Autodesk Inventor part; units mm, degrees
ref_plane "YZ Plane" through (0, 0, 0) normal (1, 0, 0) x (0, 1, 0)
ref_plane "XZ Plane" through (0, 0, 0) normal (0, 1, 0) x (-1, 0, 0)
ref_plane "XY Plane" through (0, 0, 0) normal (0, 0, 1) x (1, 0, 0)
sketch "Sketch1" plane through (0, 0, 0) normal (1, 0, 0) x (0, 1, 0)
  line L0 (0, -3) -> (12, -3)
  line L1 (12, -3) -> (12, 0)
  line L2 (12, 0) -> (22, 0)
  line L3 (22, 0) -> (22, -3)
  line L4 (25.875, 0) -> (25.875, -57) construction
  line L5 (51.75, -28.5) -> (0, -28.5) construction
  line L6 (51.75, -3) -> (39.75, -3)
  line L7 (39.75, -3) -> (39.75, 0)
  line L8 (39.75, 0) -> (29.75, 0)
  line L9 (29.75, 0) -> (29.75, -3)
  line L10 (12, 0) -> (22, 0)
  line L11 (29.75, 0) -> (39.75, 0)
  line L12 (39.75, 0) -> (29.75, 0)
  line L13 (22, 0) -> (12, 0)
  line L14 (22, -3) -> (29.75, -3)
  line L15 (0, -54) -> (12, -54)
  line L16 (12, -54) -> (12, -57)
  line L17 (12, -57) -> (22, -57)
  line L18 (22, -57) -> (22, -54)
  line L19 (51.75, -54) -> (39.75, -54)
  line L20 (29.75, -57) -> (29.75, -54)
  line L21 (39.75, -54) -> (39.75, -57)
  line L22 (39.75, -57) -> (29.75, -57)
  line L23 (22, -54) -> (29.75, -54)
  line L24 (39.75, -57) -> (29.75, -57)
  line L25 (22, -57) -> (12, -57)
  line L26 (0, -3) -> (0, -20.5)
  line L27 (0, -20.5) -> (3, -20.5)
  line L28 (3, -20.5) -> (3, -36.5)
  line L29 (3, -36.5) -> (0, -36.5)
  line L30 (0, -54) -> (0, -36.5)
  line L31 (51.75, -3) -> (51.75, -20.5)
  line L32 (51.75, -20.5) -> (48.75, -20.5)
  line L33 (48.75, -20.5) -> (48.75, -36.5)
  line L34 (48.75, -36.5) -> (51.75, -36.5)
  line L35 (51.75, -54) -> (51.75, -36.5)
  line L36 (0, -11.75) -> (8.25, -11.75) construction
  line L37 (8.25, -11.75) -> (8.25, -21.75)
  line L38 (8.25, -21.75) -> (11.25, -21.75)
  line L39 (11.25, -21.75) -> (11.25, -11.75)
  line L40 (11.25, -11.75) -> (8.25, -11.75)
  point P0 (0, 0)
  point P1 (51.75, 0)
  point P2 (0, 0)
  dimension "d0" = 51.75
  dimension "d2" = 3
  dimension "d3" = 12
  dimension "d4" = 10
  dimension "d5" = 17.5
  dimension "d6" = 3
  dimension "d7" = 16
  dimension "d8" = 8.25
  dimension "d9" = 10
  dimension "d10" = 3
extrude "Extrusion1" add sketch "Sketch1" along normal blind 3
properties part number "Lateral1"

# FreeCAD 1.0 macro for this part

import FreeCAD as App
import Part
import Sketcher

doc = App.newDocument("Part")
params = doc.addObject("Spreadsheet::Sheet", "Params")
for row, (alias, value) in enumerate([
    ("sketch1_width", "12 mm"),
    ("sketch1_width2", "3 mm"),
    ("sketch1_width3", "10 mm"),
    ("sketch1_height", "16 mm"),
    ("sketch1_height2", "17.5 mm"),
    ("pad1_length", "3 mm"),
], start=1):
    params.set(f"A{row}", alias)
    params.set(f"B{row}", "=" + value)
    params.setAlias(f"B{row}", alias)

body = doc.addObject("PartDesign::Body", "Body")

sketch1 = body.newObject("Sketcher::SketchObject", "Sketch")
sketch1.AttachmentSupport = (doc.getObject("YZ_Plane"), [""])
sketch1.MapMode = "FlatFace"
sketch1.addGeometry(Part.LineSegment(App.Vector(12, -3, 0), App.Vector(0, -3, 0)), False)
sketch1.addGeometry(Part.LineSegment(App.Vector(0, -3, 0), App.Vector(0, -20.5, 0)), False)
sketch1.addGeometry(Part.LineSegment(App.Vector(0, -20.5, 0), App.Vector(3, -20.5, 0)), False)
sketch1.addGeometry(Part.LineSegment(App.Vector(3, -20.5, 0), App.Vector(3, -36.5, 0)), False)
sketch1.addGeometry(Part.LineSegment(App.Vector(3, -36.5, 0), App.Vector(0, -36.5, 0)), False)
sketch1.addGeometry(Part.LineSegment(App.Vector(0, -36.5, 0), App.Vector(0, -54, 0)), False)
sketch1.addGeometry(Part.LineSegment(App.Vector(0, -54, 0), App.Vector(12, -54, 0)), False)
sketch1.addGeometry(Part.LineSegment(App.Vector(12, -54, 0), App.Vector(12, -57, 0)), False)
sketch1.addGeometry(Part.LineSegment(App.Vector(12, -57, 0), App.Vector(22, -57, 0)), False)
sketch1.addGeometry(Part.LineSegment(App.Vector(22, -57, 0), App.Vector(22, -54, 0)), False)
sketch1.addGeometry(Part.LineSegment(App.Vector(22, -54, 0), App.Vector(29.8, -54, 0)), False)
sketch1.addGeometry(Part.LineSegment(App.Vector(29.8, -54, 0), App.Vector(29.8, -57, 0)), False)
sketch1.addGeometry(Part.LineSegment(App.Vector(29.8, -57, 0), App.Vector(39.8, -57, 0)), False)
sketch1.addGeometry(Part.LineSegment(App.Vector(39.8, -57, 0), App.Vector(39.8, -54, 0)), False)
sketch1.addGeometry(Part.LineSegment(App.Vector(39.8, -54, 0), App.Vector(51.8, -54, 0)), False)
sketch1.addGeometry(Part.LineSegment(App.Vector(51.8, -54, 0), App.Vector(51.8, -36.5, 0)), False)
sketch1.addGeometry(Part.LineSegment(App.Vector(51.8, -36.5, 0), App.Vector(48.8, -36.5, 0)), False)
sketch1.addGeometry(Part.LineSegment(App.Vector(48.8, -36.5, 0), App.Vector(48.8, -20.5, 0)), False)
sketch1.addGeometry(Part.LineSegment(App.Vector(48.8, -20.5, 0), App.Vector(51.8, -20.5, 0)), False)
sketch1.addGeometry(Part.LineSegment(App.Vector(51.8, -20.5, 0), App.Vector(51.8, -3, 0)), False)
sketch1.addGeometry(Part.LineSegment(App.Vector(51.8, -3, 0), App.Vector(39.8, -3, 0)), False)
sketch1.addGeometry(Part.LineSegment(App.Vector(39.8, -3, 0), App.Vector(39.8, 0, 0)), False)
sketch1.addGeometry(Part.LineSegment(App.Vector(39.8, 0, 0), App.Vector(29.8, 0, 0)), False)
sketch1.addGeometry(Part.LineSegment(App.Vector(29.8, 0, 0), App.Vector(29.8, -3, 0)), False)
sketch1.addGeometry(Part.LineSegment(App.Vector(29.8, -3, 0), App.Vector(22, -3, 0)), False)
sketch1.addGeometry(Part.LineSegment(App.Vector(22, -3, 0), App.Vector(22, 0, 0)), False)
sketch1.addGeometry(Part.LineSegment(App.Vector(22, 0, 0), App.Vector(12, 0, 0)), False)
sketch1.addGeometry(Part.LineSegment(App.Vector(12, 0, 0), App.Vector(12, -3, 0)), False)
sketch1.addGeometry(Part.LineSegment(App.Vector(8.2, -21.8, 0), App.Vector(8.2, -11.8, 0)), False)
sketch1.addGeometry(Part.LineSegment(App.Vector(8.2, -11.8, 0), App.Vector(11.2, -11.8, 0)), False)
sketch1.addGeometry(Part.LineSegment(App.Vector(11.2, -11.8, 0), App.Vector(11.2, -21.8, 0)), False)
sketch1.addGeometry(Part.LineSegment(App.Vector(11.2, -21.8, 0), App.Vector(8.2, -21.8, 0)), False)
sketch1.addConstraint(Sketcher.Constraint("Coincident", 0, 2, 1, 1))
sketch1.addConstraint(Sketcher.Constraint("Coincident", 1, 2, 2, 1))
sketch1.addConstraint(Sketcher.Constraint("Coincident", 2, 2, 3, 1))
sketch1.addConstraint(Sketcher.Constraint("Coincident", 3, 2, 4, 1))
sketch1.addConstraint(Sketcher.Constraint("Coincident", 4, 2, 5, 1))
sketch1.addConstraint(Sketcher.Constraint("Coincident", 5, 2, 6, 1))
sketch1.addConstraint(Sketcher.Constraint("Coincident", 6, 2, 7, 1))
sketch1.addConstraint(Sketcher.Constraint("Coincident", 7, 2, 8, 1))
sketch1.addConstraint(Sketcher.Constraint("Coincident", 8, 2, 9, 1))
sketch1.addConstraint(Sketcher.Constraint("Coincident", 9, 2, 10, 1))
sketch1.addConstraint(Sketcher.Constraint("Coincident", 10, 2, 11, 1))
sketch1.addConstraint(Sketcher.Constraint("Coincident", 11, 2, 12, 1))
sketch1.addConstraint(Sketcher.Constraint("Coincident", 12, 2, 13, 1))
sketch1.addConstraint(Sketcher.Constraint("Coincident", 13, 2, 14, 1))
sketch1.addConstraint(Sketcher.Constraint("Coincident", 14, 2, 15, 1))
sketch1.addConstraint(Sketcher.Constraint("Coincident", 15, 2, 16, 1))
sketch1.addConstraint(Sketcher.Constraint("Coincident", 16, 2, 17, 1))
sketch1.addConstraint(Sketcher.Constraint("Coincident", 17, 2, 18, 1))
sketch1.addConstraint(Sketcher.Constraint("Coincident", 18, 2, 19, 1))
sketch1.addConstraint(Sketcher.Constraint("Coincident", 19, 2, 20, 1))
sketch1.addConstraint(Sketcher.Constraint("Coincident", 20, 2, 21, 1))
sketch1.addConstraint(Sketcher.Constraint("Coincident", 21, 2, 22, 1))
sketch1.addConstraint(Sketcher.Constraint("Coincident", 22, 2, 23, 1))
sketch1.addConstraint(Sketcher.Constraint("Coincident", 23, 2, 24, 1))
sketch1.addConstraint(Sketcher.Constraint("Coincident", 24, 2, 25, 1))
sketch1.addConstraint(Sketcher.Constraint("Coincident", 25, 2, 26, 1))
sketch1.addConstraint(Sketcher.Constraint("Coincident", 26, 2, 27, 1))
sketch1.addConstraint(Sketcher.Constraint("Coincident", 27, 2, 0, 1))
sketch1.addConstraint(Sketcher.Constraint("Coincident", 28, 2, 29, 1))
sketch1.addConstraint(Sketcher.Constraint("Coincident", 29, 2, 30, 1))
sketch1.addConstraint(Sketcher.Constraint("Coincident", 30, 2, 31, 1))
sketch1.addConstraint(Sketcher.Constraint("Coincident", 31, 2, 28, 1))
sketch1.addConstraint(Sketcher.Constraint("Horizontal", 0))
sketch1.addConstraint(Sketcher.Constraint("Vertical", 1))
sketch1.addConstraint(Sketcher.Constraint("Horizontal", 2))
sketch1.addConstraint(Sketcher.Constraint("Vertical", 3))
sketch1.addConstraint(Sketcher.Constraint("Horizontal", 4))
sketch1.addConstraint(Sketcher.Constraint("Vertical", 5))
sketch1.addConstraint(Sketcher.Constraint("Horizontal", 6))
sketch1.addConstraint(Sketcher.Constraint("Vertical", 7))
sketch1.addConstraint(Sketcher.Constraint("Horizontal", 8))
sketch1.addConstraint(Sketcher.Constraint("Vertical", 9))
sketch1.addConstraint(Sketcher.Constraint("Horizontal", 10))
sketch1.addConstraint(Sketcher.Constraint("Vertical", 11))
sketch1.addConstraint(Sketcher.Constraint("Horizontal", 12))
sketch1.addConstraint(Sketcher.Constraint("Vertical", 13))
sketch1.addConstraint(Sketcher.Constraint("Horizontal", 14))
sketch1.addConstraint(Sketcher.Constraint("Vertical", 15))
sketch1.addConstraint(Sketcher.Constraint("Horizontal", 16))
sketch1.addConstraint(Sketcher.Constraint("Vertical", 17))
sketch1.addConstraint(Sketcher.Constraint("Horizontal", 18))
sketch1.addConstraint(Sketcher.Constraint("Vertical", 19))
sketch1.addConstraint(Sketcher.Constraint("Horizontal", 20))
sketch1.addConstraint(Sketcher.Constraint("Vertical", 21))
sketch1.addConstraint(Sketcher.Constraint("Horizontal", 22))
sketch1.addConstraint(Sketcher.Constraint("Vertical", 23))
sketch1.addConstraint(Sketcher.Constraint("Horizontal", 24))
sketch1.addConstraint(Sketcher.Constraint("Vertical", 25))
sketch1.addConstraint(Sketcher.Constraint("Horizontal", 26))
sketch1.addConstraint(Sketcher.Constraint("Vertical", 27))
sketch1.addConstraint(Sketcher.Constraint("Vertical", 28))
sketch1.addConstraint(Sketcher.Constraint("Horizontal", 29))
sketch1.addConstraint(Sketcher.Constraint("Vertical", 30))
sketch1.addConstraint(Sketcher.Constraint("Horizontal", 31))
sketch1.addConstraint(Sketcher.Constraint("PointOnObject", 0, 2, -2))
sketch1.addConstraint(Sketcher.Constraint("PointOnObject", 4, 2, -2))
sketch1.addConstraint(Sketcher.Constraint("PointOnObject", 21, 2, -1))
sketch1.addConstraint(Sketcher.Constraint("PointOnObject", 25, 2, -1))
sketch1.addConstraint(Sketcher.Constraint("Horizontal", 6, 2, 9, 2))
sketch1.addConstraint(Sketcher.Constraint("Horizontal", 8, 2, 11, 2))
sketch1.addConstraint(Sketcher.Constraint("Horizontal", 10, 2, 13, 2))
sketch1.addConstraint(Sketcher.Constraint("Horizontal", 4, 2, 15, 2))
sketch1.addConstraint(Sketcher.Constraint("Horizontal", 2, 2, 17, 2))
sketch1.addConstraint(Sketcher.Constraint("Horizontal", 0, 2, 19, 2))
sketch1.addConstraint(Sketcher.Constraint("Horizontal", 20, 2, 23, 2))
sketch1.addConstraint(Sketcher.Constraint("Vertical", 15, 2, 18, 2))
sketch1.addConstraint(Sketcher.Constraint("Vertical", 13, 2, 20, 2))
sketch1.addConstraint(Sketcher.Constraint("Vertical", 11, 2, 22, 2))
sketch1.addConstraint(Sketcher.Constraint("Vertical", 9, 2, 24, 2))
sketch1.addConstraint(Sketcher.Constraint("Vertical", 7, 2, 26, 2))
sketch1.addConstraint(Sketcher.Constraint("Equal", 8, 12))
sketch1.addConstraint(Sketcher.Constraint("Equal", 6, 14))
sketch1.addConstraint(Sketcher.Constraint("Equal", 4, 16))
sketch1.addConstraint(Sketcher.Constraint("Equal", 18, 29))
sketch1.addConstraint(Sketcher.Constraint("Equal", 1, 5))
sketch1.addConstraint(Sketcher.Constraint("Equal", 31, 7))
sketch1.addConstraint(Sketcher.Constraint("Equal", 13, 21))
sketch1.addConstraint(Sketcher.Constraint("Equal", 26, 28))
sketch1.addConstraint(Sketcher.Constraint("DistanceX", 0, 2, 0, 1, 12.0))
sketch1.addConstraint(Sketcher.Constraint("DistanceX", 2, 1, 2, 2, 3.0))
sketch1.addConstraint(Sketcher.Constraint("DistanceX", 8, 1, 8, 2, 10.0))
sketch1.addConstraint(Sketcher.Constraint("DistanceY", 3, 2, 3, 1, 16.0))
sketch1.addConstraint(Sketcher.Constraint("DistanceY", 1, 2, 1, 1, 17.5))
sketch1.addConstraint(Sketcher.Constraint("DistanceX", -1, 1, 14, 2, 51.75))
sketch1.addConstraint(Sketcher.Constraint("DistanceX", -1, 1, 28, 2, 8.25))
sketch1.addConstraint(Sketcher.Constraint("DistanceY", 28, 2, -1, 1, 11.75))
sketch1.setExpression("Constraints[88]", "Params.sketch1_width")
sketch1.setExpression("Constraints[89]", "Params.sketch1_width2")
sketch1.setExpression("Constraints[90]", "Params.sketch1_width3")
sketch1.setExpression("Constraints[91]", "Params.sketch1_height")
sketch1.setExpression("Constraints[92]", "Params.sketch1_height2")
pad1 = body.newObject("PartDesign::Pad", "Pad")
pad1.Profile = sketch1
pad1.setExpression("Length", "Params.pad1_length")

doc.recompute()
